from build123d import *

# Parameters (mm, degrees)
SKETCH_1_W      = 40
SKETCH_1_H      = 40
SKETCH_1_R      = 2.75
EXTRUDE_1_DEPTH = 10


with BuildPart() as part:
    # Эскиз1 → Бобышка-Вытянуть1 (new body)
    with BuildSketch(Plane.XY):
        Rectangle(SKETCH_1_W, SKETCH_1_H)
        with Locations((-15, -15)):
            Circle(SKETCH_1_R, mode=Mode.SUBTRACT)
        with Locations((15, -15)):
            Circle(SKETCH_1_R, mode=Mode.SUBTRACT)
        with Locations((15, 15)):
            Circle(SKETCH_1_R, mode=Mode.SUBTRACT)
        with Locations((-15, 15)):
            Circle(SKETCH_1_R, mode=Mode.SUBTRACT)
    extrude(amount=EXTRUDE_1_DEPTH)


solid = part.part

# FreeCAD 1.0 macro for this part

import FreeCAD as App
import Part
import Sketcher


def add_polygon(sketch, points):
    """Adds a closed chain of lines whose ends are joined by coincident constraints."""
    first, n = sketch.GeometryCount, len(points)
    for a, b in zip(points, points[1:] + points[:1]):
        sketch.addGeometry(Part.LineSegment(App.Vector(*a, 0), App.Vector(*b, 0)), False)
    for i in range(n):
        sketch.addConstraint(Sketcher.Constraint("Coincident", first + i, 2, first + (i + 1) % n, 1))

doc = App.newDocument("Part")
params = doc.addObject("Spreadsheet::Sheet", "Params")
for row, (alias, value) in enumerate([
    ("sketch1_diameter", "5.5 mm"),
    ("sketch1_width", "40 mm"),
    ("pad1_length", "10 mm"),
], start=1):
    params.set(f"A{row}", alias)
    params.set(f"B{row}", "=" + value)
    params.setAlias(f"B{row}", alias)

body = doc.addObject("PartDesign::Body", "Body")

sketch1 = body.newObject("Sketcher::SketchObject", "Sketch")
sketch1.AttachmentSupport = (doc.getObject("XY_Plane"), [""])
sketch1.MapMode = "FlatFace"
add_polygon(sketch1, [(-20, 20), (-20, -20), (20, -20), (20, 20)])
sketch1.addGeometry(Part.Circle(App.Vector(-15, -15, 0), App.Vector(0, 0, 1), 2.75), False)
sketch1.addGeometry(Part.Circle(App.Vector(15, -15, 0), App.Vector(0, 0, 1), 2.75), False)
sketch1.addGeometry(Part.Circle(App.Vector(-15, 15, 0), App.Vector(0, 0, 1), 2.75), False)
sketch1.addGeometry(Part.Circle(App.Vector(15, 15, 0), App.Vector(0, 0, 1), 2.75), False)
sketch1.addConstraint([
    Sketcher.Constraint("Vertical", 0),
    Sketcher.Constraint("Horizontal", 1),
    Sketcher.Constraint("Vertical", 2),
    Sketcher.Constraint("Horizontal", 3),
    Sketcher.Constraint("Equal", 4, 5),
    Sketcher.Constraint("Equal", 5, 6),
    Sketcher.Constraint("Equal", 6, 7),
    Sketcher.Constraint("Symmetric", 5, 3, 6, 3, -1, 1),
    Sketcher.Constraint("Symmetric", 4, 3, 7, 3, -1, 1),
    Sketcher.Constraint("Symmetric", 0, 2, 2, 2, -1, 1),
    Sketcher.Constraint("Symmetric", 4, 3, 5, 3, -2),
    Sketcher.Constraint("Equal", 3, 0),
    Sketcher.Constraint("Diameter", 4, 5.5),
    Sketcher.Constraint("DistanceX", 1, 1, 1, 2, 40.0),
    Sketcher.Constraint("DistanceX", 4, 3, -1, 1, 15.0),
    Sketcher.Constraint("DistanceY", 4, 3, -1, 1, 15.0),
])
sketch1.setExpression("Constraints[16]", "Params.sketch1_diameter")
sketch1.setExpression("Constraints[17]", "Params.sketch1_width")
pad1 = body.newObject("PartDesign::Pad", "Pad")
pad1.Profile = sketch1
pad1.setExpression("Length", "Params.pad1_length")

doc.recompute()
